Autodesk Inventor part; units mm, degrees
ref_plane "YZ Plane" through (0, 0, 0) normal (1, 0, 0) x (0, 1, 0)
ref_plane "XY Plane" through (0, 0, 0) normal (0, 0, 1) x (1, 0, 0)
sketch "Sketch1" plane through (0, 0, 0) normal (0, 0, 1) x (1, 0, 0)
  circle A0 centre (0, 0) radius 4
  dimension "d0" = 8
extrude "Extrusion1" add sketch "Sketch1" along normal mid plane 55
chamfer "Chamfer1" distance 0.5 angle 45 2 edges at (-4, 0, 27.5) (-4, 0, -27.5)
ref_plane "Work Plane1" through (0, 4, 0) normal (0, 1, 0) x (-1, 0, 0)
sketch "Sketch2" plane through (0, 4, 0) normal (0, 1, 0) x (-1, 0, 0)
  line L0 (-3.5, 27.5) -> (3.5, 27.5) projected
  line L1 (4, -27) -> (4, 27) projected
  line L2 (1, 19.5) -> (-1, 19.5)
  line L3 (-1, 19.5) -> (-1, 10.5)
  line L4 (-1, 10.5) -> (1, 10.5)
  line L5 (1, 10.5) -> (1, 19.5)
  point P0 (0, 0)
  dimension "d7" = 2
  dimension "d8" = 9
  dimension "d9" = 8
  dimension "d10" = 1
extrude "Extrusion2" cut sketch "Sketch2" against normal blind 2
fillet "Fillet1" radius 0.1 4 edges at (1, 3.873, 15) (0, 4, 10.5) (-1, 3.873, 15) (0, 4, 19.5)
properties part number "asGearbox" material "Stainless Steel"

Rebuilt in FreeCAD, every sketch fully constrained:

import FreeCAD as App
import Part
import Sketcher
from FreeCAD import Vector
Q = App.Units.Quantity


def edges_at(feature, points):
    """Names of the edges that pass closest to the given points."""
    edges = feature.Shape.Edges
    near = lambda p: min(range(len(edges)), key=lambda i: edges[i].distToShape(Part.Vertex(*p))[0])
    return sorted({f"Edge{near(p) + 1}" for p in points})

doc = App.newDocument("Part")
body = doc.addObject("PartDesign::Body", "Body")

sketch1 = body.newObject("Sketcher::SketchObject", "Sketch")
sketch1.AttachmentSupport = (doc.getObject("XY_Plane"), [""])
sketch1.MapMode = "FlatFace"
sketch1.addGeometry(Part.Circle(Vector(0, 0, 0), Vector(0, 0, 1), 4), False)
sketch1.addConstraint([
    Sketcher.Constraint("Coincident", 0, 3, -1, 1),
    Sketcher.Constraint("Diameter", 0, Q("8 mm")),
])
pad1 = body.newObject("PartDesign::Pad", "Pad")
pad1.Profile = sketch1
pad1.Length = 55
pad1.Midplane = True
doc.recompute()

chamfer = body.newObject("PartDesign::Chamfer", "Chamfer")
chamfer.Base = (pad1, edges_at(pad1, [(-4, 0, 27.5), (-4, 0, -27.5)]))
chamfer.Size = 0.5

sketch2 = body.newObject("Sketcher::SketchObject", "Sketch001")
sketch2.AttachmentSupport = (doc.getObject("XZ_Plane"), [""])
sketch2.MapMode = "FlatFace"
sketch2.AttachmentOffset = App.Placement(Vector(0, 0, -4), App.Rotation())
sketch2.addGeometry([
    Part.LineSegment(Vector(-1, 10.5, 0), Vector(-1, 19.5, 0)),
    Part.LineSegment(Vector(-1, 19.5, 0), Vector(1, 19.5, 0)),
    Part.LineSegment(Vector(1, 19.5, 0), Vector(1, 10.5, 0)),
    Part.LineSegment(Vector(1, 10.5, 0), Vector(-1, 10.5, 0)),
], False)
sketch2.addConstraint([
    Sketcher.Constraint("Coincident", 0, 2, 1, 1),
    Sketcher.Constraint("Coincident", 1, 2, 2, 1),
    Sketcher.Constraint("Coincident", 2, 2, 3, 1),
    Sketcher.Constraint("Coincident", 3, 2, 0, 1),
    Sketcher.Constraint("Vertical", 0),
    Sketcher.Constraint("Horizontal", 1),
    Sketcher.Constraint("Vertical", 2),
    Sketcher.Constraint("Horizontal", 3),
    Sketcher.Constraint("DistanceX", 1, 1, 1, 2, Q("2 mm")),
    Sketcher.Constraint("DistanceY", 0, 1, 0, 2, Q("9 mm")),
    Sketcher.Constraint("DistanceX", 0, 2, -1, 1, Q("1 mm")),
    Sketcher.Constraint("DistanceY", -1, 1, 0, 2, Q("19.5 mm")),
])
pocket1 = body.newObject("PartDesign::Pocket", "Pocket")
pocket1.Profile = sketch2
pocket1.Length = 2
pocket1.Reversed = True
doc.recompute()

fillet = body.newObject("PartDesign::Fillet", "Fillet")
fillet.Base = (pocket1, edges_at(pocket1, [
    (1, 3.873, 15),
    (0, 4, 10.5),
    (-1, 3.873, 15),
    (0, 4, 19.5),
]))
fillet.Radius = 0.1

doc.recompute()
